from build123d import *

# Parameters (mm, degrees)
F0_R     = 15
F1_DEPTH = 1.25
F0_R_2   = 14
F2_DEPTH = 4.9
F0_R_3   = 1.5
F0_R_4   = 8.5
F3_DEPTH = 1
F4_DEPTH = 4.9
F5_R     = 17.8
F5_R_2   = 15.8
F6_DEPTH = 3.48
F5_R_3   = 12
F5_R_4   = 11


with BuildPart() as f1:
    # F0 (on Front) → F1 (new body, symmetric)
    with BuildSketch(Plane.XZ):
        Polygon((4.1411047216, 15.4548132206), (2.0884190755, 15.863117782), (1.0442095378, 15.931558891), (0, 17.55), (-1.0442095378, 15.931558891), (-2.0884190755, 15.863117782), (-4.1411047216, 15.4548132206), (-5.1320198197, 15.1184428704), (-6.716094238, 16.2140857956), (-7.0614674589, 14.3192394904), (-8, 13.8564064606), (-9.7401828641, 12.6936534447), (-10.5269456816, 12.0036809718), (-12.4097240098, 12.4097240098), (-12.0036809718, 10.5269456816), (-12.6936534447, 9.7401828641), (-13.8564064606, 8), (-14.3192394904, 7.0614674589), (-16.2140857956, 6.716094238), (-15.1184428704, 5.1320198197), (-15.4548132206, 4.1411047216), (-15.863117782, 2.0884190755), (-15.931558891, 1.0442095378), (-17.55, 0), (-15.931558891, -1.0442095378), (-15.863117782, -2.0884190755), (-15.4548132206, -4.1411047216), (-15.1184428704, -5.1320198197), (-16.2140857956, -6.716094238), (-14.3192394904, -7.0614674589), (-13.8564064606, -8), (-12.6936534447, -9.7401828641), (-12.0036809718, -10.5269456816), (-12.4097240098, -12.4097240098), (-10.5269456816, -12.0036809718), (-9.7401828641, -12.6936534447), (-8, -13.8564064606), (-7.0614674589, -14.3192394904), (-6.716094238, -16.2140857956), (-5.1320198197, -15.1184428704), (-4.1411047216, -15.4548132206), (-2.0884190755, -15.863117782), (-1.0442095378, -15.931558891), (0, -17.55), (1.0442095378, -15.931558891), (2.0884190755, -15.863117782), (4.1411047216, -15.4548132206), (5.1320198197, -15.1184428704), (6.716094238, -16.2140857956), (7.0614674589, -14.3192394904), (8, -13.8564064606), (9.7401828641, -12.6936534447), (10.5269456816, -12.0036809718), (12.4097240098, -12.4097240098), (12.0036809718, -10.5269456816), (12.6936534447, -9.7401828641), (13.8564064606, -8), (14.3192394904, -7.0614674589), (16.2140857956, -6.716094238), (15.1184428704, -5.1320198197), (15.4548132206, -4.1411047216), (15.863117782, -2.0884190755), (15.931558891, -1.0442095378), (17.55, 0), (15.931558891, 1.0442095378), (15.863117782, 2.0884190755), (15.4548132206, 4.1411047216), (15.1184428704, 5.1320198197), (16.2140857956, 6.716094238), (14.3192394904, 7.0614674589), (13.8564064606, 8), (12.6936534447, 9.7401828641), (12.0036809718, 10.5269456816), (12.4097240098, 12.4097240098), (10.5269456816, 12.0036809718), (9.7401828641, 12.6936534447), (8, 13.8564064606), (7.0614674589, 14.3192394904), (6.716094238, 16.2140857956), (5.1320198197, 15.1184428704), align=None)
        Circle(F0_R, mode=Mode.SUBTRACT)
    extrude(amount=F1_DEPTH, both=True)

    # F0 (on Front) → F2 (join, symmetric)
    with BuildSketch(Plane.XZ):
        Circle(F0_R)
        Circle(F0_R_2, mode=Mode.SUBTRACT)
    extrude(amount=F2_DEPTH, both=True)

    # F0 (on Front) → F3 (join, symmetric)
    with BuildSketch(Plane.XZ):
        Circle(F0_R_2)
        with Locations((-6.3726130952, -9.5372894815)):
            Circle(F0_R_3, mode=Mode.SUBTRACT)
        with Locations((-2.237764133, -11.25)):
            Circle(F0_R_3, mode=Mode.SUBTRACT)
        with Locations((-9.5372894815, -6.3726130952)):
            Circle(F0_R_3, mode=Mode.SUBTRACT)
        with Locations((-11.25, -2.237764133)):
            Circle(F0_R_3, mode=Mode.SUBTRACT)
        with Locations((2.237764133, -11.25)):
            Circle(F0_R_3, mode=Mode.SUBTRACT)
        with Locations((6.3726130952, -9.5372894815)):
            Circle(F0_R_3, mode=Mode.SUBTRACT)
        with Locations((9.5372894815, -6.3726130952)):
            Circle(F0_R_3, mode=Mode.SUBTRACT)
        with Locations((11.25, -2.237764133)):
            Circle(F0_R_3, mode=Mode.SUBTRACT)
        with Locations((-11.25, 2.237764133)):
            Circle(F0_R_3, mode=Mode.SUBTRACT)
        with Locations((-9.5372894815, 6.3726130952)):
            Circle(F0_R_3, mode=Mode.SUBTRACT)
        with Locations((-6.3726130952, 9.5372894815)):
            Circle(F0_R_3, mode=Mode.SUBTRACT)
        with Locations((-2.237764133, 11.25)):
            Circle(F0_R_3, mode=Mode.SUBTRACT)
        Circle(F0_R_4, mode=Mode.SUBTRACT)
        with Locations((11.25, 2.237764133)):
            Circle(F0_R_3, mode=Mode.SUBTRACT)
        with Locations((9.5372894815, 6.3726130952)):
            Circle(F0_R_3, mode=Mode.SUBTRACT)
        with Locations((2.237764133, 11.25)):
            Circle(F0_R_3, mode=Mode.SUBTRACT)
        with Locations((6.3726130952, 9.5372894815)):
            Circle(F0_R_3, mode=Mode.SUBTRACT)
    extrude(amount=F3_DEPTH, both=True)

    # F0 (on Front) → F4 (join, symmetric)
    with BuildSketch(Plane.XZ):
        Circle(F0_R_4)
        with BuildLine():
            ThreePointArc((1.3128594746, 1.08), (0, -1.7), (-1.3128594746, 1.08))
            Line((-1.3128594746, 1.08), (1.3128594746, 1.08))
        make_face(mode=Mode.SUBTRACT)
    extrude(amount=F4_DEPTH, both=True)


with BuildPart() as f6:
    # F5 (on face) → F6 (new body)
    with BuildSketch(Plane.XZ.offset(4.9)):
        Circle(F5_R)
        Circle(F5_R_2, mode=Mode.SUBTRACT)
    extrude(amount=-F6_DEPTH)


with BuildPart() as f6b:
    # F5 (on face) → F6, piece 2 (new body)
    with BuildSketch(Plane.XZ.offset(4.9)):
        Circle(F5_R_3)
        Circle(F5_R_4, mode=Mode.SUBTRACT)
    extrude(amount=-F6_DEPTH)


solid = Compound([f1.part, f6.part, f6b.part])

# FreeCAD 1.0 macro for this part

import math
import FreeCAD as App
import Part
import Sketcher
Q = App.Units.Quantity

doc = App.newDocument("Part")
body = doc.addObject("PartDesign::Body", "Body")

# Sketch on XZ plane
sketch1 = body.newObject("Sketcher::SketchObject", "Sketch")
sketch1.AttachmentSupport = (doc.getObject("XZ_Plane"), [""])
sketch1.MapMode = "FlatFace"
sketch1.addGeometry(Part.LineSegment(App.Vector(4.1, 15.5, 0), App.Vector(2.1, 15.9, 0)), False)
sketch1.addGeometry(Part.LineSegment(App.Vector(2.1, 15.9, 0), App.Vector(1, 15.9, 0)), False)
sketch1.addGeometry(Part.LineSegment(App.Vector(1, 15.9, 0), App.Vector(0, 17.6, 0)), False)
sketch1.addGeometry(Part.LineSegment(App.Vector(0, 17.6, 0), App.Vector(-1, 15.9, 0)), False)
sketch1.addGeometry(Part.LineSegment(App.Vector(-1, 15.9, 0), App.Vector(-2.1, 15.9, 0)), False)
sketch1.addGeometry(Part.LineSegment(App.Vector(-2.1, 15.9, 0), App.Vector(-4.1, 15.5, 0)), False)
sketch1.addGeometry(Part.LineSegment(App.Vector(-4.1, 15.5, 0), App.Vector(-5.1, 15.1, 0)), False)
sketch1.addGeometry(Part.LineSegment(App.Vector(-5.1, 15.1, 0), App.Vector(-6.7, 16.2, 0)), False)
sketch1.addGeometry(Part.LineSegment(App.Vector(-6.7, 16.2, 0), App.Vector(-7.1, 14.3, 0)), False)
sketch1.addGeometry(Part.LineSegment(App.Vector(-7.1, 14.3, 0), App.Vector(-8, 13.9, 0)), False)
sketch1.addGeometry(Part.LineSegment(App.Vector(-8, 13.9, 0), App.Vector(-9.7, 12.7, 0)), False)
sketch1.addGeometry(Part.LineSegment(App.Vector(-9.7, 12.7, 0), App.Vector(-10.5, 12, 0)), False)
sketch1.addGeometry(Part.LineSegment(App.Vector(-10.5, 12, 0), App.Vector(-12.4, 12.4, 0)), False)
sketch1.addGeometry(Part.LineSegment(App.Vector(-12.4, 12.4, 0), App.Vector(-12, 10.5, 0)), False)
sketch1.addGeometry(Part.LineSegment(App.Vector(-12, 10.5, 0), App.Vector(-12.7, 9.7, 0)), False)
sketch1.addGeometry(Part.LineSegment(App.Vector(-12.7, 9.7, 0), App.Vector(-13.9, 8, 0)), False)
sketch1.addGeometry(Part.LineSegment(App.Vector(-13.9, 8, 0), App.Vector(-14.3, 7.1, 0)), False)
sketch1.addGeometry(Part.LineSegment(App.Vector(-14.3, 7.1, 0), App.Vector(-16.2, 6.7, 0)), False)
sketch1.addGeometry(Part.LineSegment(App.Vector(-16.2, 6.7, 0), App.Vector(-15.1, 5.1, 0)), False)
sketch1.addGeometry(Part.LineSegment(App.Vector(-15.1, 5.1, 0), App.Vector(-15.5, 4.1, 0)), False)
sketch1.addGeometry(Part.LineSegment(App.Vector(-15.5, 4.1, 0), App.Vector(-15.9, 2.1, 0)), False)
sketch1.addGeometry(Part.LineSegment(App.Vector(-15.9, 2.1, 0), App.Vector(-15.9, 1, 0)), False)
sketch1.addGeometry(Part.LineSegment(App.Vector(-15.9, 1, 0), App.Vector(-17.6, 0, 0)), False)
sketch1.addGeometry(Part.LineSegment(App.Vector(-17.6, 0, 0), App.Vector(-15.9, -1, 0)), False)
sketch1.addGeometry(Part.LineSegment(App.Vector(-15.9, -1, 0), App.Vector(-15.9, -2.1, 0)), False)
sketch1.addGeometry(Part.LineSegment(App.Vector(-15.9, -2.1, 0), App.Vector(-15.5, -4.1, 0)), False)
sketch1.addGeometry(Part.LineSegment(App.Vector(-15.5, -4.1, 0), App.Vector(-15.1, -5.1, 0)), False)
sketch1.addGeometry(Part.LineSegment(App.Vector(-15.1, -5.1, 0), App.Vector(-16.2, -6.7, 0)), False)
sketch1.addGeometry(Part.LineSegment(App.Vector(-16.2, -6.7, 0), App.Vector(-14.3, -7.1, 0)), False)
sketch1.addGeometry(Part.LineSegment(App.Vector(-14.3, -7.1, 0), App.Vector(-13.9, -8, 0)), False)
sketch1.addGeometry(Part.LineSegment(App.Vector(-13.9, -8, 0), App.Vector(-12.7, -9.7, 0)), False)
sketch1.addGeometry(Part.LineSegment(App.Vector(-12.7, -9.7, 0), App.Vector(-12, -10.5, 0)), False)
sketch1.addGeometry(Part.LineSegment(App.Vector(-12, -10.5, 0), App.Vector(-12.4, -12.4, 0)), False)
sketch1.addGeometry(Part.LineSegment(App.Vector(-12.4, -12.4, 0), App.Vector(-10.5, -12, 0)), False)
sketch1.addGeometry(Part.LineSegment(App.Vector(-10.5, -12, 0), App.Vector(-9.7, -12.7, 0)), False)
sketch1.addGeometry(Part.LineSegment(App.Vector(-9.7, -12.7, 0), App.Vector(-8, -13.9, 0)), False)
sketch1.addGeometry(Part.LineSegment(App.Vector(-8, -13.9, 0), App.Vector(-7.1, -14.3, 0)), False)
sketch1.addGeometry(Part.LineSegment(App.Vector(-7.1, -14.3, 0), App.Vector(-6.7, -16.2, 0)), False)
sketch1.addGeometry(Part.LineSegment(App.Vector(-6.7, -16.2, 0), App.Vector(-5.1, -15.1, 0)), False)
sketch1.addGeometry(Part.LineSegment(App.Vector(-5.1, -15.1, 0), App.Vector(-4.1, -15.5, 0)), False)
sketch1.addGeometry(Part.LineSegment(App.Vector(-4.1, -15.5, 0), App.Vector(-2.1, -15.9, 0)), False)
sketch1.addGeometry(Part.LineSegment(App.Vector(-2.1, -15.9, 0), App.Vector(-1, -15.9, 0)), False)
sketch1.addGeometry(Part.LineSegment(App.Vector(-1, -15.9, 0), App.Vector(0, -17.6, 0)), False)
sketch1.addGeometry(Part.LineSegment(App.Vector(0, -17.6, 0), App.Vector(1, -15.9, 0)), False)
sketch1.addGeometry(Part.LineSegment(App.Vector(1, -15.9, 0), App.Vector(2.1, -15.9, 0)), False)
sketch1.addGeometry(Part.LineSegment(App.Vector(2.1, -15.9, 0), App.Vector(4.1, -15.5, 0)), False)
sketch1.addGeometry(Part.LineSegment(App.Vector(4.1, -15.5, 0), App.Vector(5.1, -15.1, 0)), False)
sketch1.addGeometry(Part.LineSegment(App.Vector(5.1, -15.1, 0), App.Vector(6.7, -16.2, 0)), False)
sketch1.addGeometry(Part.LineSegment(App.Vector(6.7, -16.2, 0), App.Vector(7.1, -14.3, 0)), False)
sketch1.addGeometry(Part.LineSegment(App.Vector(7.1, -14.3, 0), App.Vector(8, -13.9, 0)), False)
sketch1.addGeometry(Part.LineSegment(App.Vector(8, -13.9, 0), App.Vector(9.7, -12.7, 0)), False)
sketch1.addGeometry(Part.LineSegment(App.Vector(9.7, -12.7, 0), App.Vector(10.5, -12, 0)), False)
sketch1.addGeometry(Part.LineSegment(App.Vector(10.5, -12, 0), App.Vector(12.4, -12.4, 0)), False)
sketch1.addGeometry(Part.LineSegment(App.Vector(12.4, -12.4, 0), App.Vector(12, -10.5, 0)), False)
sketch1.addGeometry(Part.LineSegment(App.Vector(12, -10.5, 0), App.Vector(12.7, -9.7, 0)), False)
sketch1.addGeometry(Part.LineSegment(App.Vector(12.7, -9.7, 0), App.Vector(13.9, -8, 0)), False)
sketch1.addGeometry(Part.LineSegment(App.Vector(13.9, -8, 0), App.Vector(14.3, -7.1, 0)), False)
sketch1.addGeometry(Part.LineSegment(App.Vector(14.3, -7.1, 0), App.Vector(16.2, -6.7, 0)), False)
sketch1.addGeometry(Part.LineSegment(App.Vector(16.2, -6.7, 0), App.Vector(15.1, -5.1, 0)), False)
sketch1.addGeometry(Part.LineSegment(App.Vector(15.1, -5.1, 0), App.Vector(15.5, -4.1, 0)), False)
sketch1.addGeometry(Part.LineSegment(App.Vector(15.5, -4.1, 0), App.Vector(15.9, -2.1, 0)), False)
sketch1.addGeometry(Part.LineSegment(App.Vector(15.9, -2.1, 0), App.Vector(15.9, -1, 0)), False)
sketch1.addGeometry(Part.LineSegment(App.Vector(15.9, -1, 0), App.Vector(17.6, 0, 0)), False)
sketch1.addGeometry(Part.LineSegment(App.Vector(17.6, 0, 0), App.Vector(15.9, 1, 0)), False)
sketch1.addGeometry(Part.LineSegment(App.Vector(15.9, 1, 0), App.Vector(15.9, 2.1, 0)), False)
sketch1.addGeometry(Part.LineSegment(App.Vector(15.9, 2.1, 0), App.Vector(15.5, 4.1, 0)), False)
sketch1.addGeometry(Part.LineSegment(App.Vector(15.5, 4.1, 0), App.Vector(15.1, 5.1, 0)), False)
sketch1.addGeometry(Part.LineSegment(App.Vector(15.1, 5.1, 0), App.Vector(16.2, 6.7, 0)), False)
sketch1.addGeometry(Part.LineSegment(App.Vector(16.2, 6.7, 0), App.Vector(14.3, 7.1, 0)), False)
sketch1.addGeometry(Part.LineSegment(App.Vector(14.3, 7.1, 0), App.Vector(13.9, 8, 0)), False)
sketch1.addGeometry(Part.LineSegment(App.Vector(13.9, 8, 0), App.Vector(12.7, 9.7, 0)), False)
sketch1.addGeometry(Part.LineSegment(App.Vector(12.7, 9.7, 0), App.Vector(12, 10.5, 0)), False)
sketch1.addGeometry(Part.LineSegment(App.Vector(12, 10.5, 0), App.Vector(12.4, 12.4, 0)), False)
sketch1.addGeometry(Part.LineSegment(App.Vector(12.4, 12.4, 0), App.Vector(10.5, 12, 0)), False)
sketch1.addGeometry(Part.LineSegment(App.Vector(10.5, 12, 0), App.Vector(9.7, 12.7, 0)), False)
sketch1.addGeometry(Part.LineSegment(App.Vector(9.7, 12.7, 0), App.Vector(8, 13.9, 0)), False)
sketch1.addGeometry(Part.LineSegment(App.Vector(8, 13.9, 0), App.Vector(7.1, 14.3, 0)), False)
sketch1.addGeometry(Part.LineSegment(App.Vector(7.1, 14.3, 0), App.Vector(6.7, 16.2, 0)), False)
sketch1.addGeometry(Part.LineSegment(App.Vector(6.7, 16.2, 0), App.Vector(5.1, 15.1, 0)), False)
sketch1.addGeometry(Part.LineSegment(App.Vector(5.1, 15.1, 0), App.Vector(4.1, 15.5, 0)), False)
sketch1.addGeometry(Part.Circle(App.Vector(0, 0, 0), App.Vector(0, 0, 1), 15), False)
sketch1.addConstraint(Sketcher.Constraint("Coincident", 0, 2, 1, 1))
sketch1.addConstraint(Sketcher.Constraint("Coincident", 1, 2, 2, 1))
sketch1.addConstraint(Sketcher.Constraint("Coincident", 2, 2, 3, 1))
sketch1.addConstraint(Sketcher.Constraint("Coincident", 3, 2, 4, 1))
sketch1.addConstraint(Sketcher.Constraint("Coincident", 4, 2, 5, 1))
sketch1.addConstraint(Sketcher.Constraint("Coincident", 5, 2, 6, 1))
sketch1.addConstraint(Sketcher.Constraint("Coincident", 6, 2, 7, 1))
sketch1.addConstraint(Sketcher.Constraint("Coincident", 7, 2, 8, 1))
sketch1.addConstraint(Sketcher.Constraint("Coincident", 8, 2, 9, 1))
sketch1.addConstraint(Sketcher.Constraint("Coincident", 9, 2, 10, 1))
sketch1.addConstraint(Sketcher.Constraint("Coincident", 10, 2, 11, 1))
sketch1.addConstraint(Sketcher.Constraint("Coincident", 11, 2, 12, 1))
sketch1.addConstraint(Sketcher.Constraint("Coincident", 12, 2, 13, 1))
sketch1.addConstraint(Sketcher.Constraint("Coincident", 13, 2, 14, 1))
sketch1.addConstraint(Sketcher.Constraint("Coincident", 14, 2, 15, 1))
sketch1.addConstraint(Sketcher.Constraint("Coincident", 15, 2, 16, 1))
sketch1.addConstraint(Sketcher.Constraint("Coincident", 16, 2, 17, 1))
sketch1.addConstraint(Sketcher.Constraint("Coincident", 17, 2, 18, 1))
sketch1.addConstraint(Sketcher.Constraint("Coincident", 18, 2, 19, 1))
sketch1.addConstraint(Sketcher.Constraint("Coincident", 19, 2, 20, 1))
sketch1.addConstraint(Sketcher.Constraint("Coincident", 20, 2, 21, 1))
sketch1.addConstraint(Sketcher.Constraint("Coincident", 21, 2, 22, 1))
sketch1.addConstraint(Sketcher.Constraint("Coincident", 22, 2, 23, 1))
sketch1.addConstraint(Sketcher.Constraint("Coincident", 23, 2, 24, 1))
sketch1.addConstraint(Sketcher.Constraint("Coincident", 24, 2, 25, 1))
sketch1.addConstraint(Sketcher.Constraint("Coincident", 25, 2, 26, 1))
sketch1.addConstraint(Sketcher.Constraint("Coincident", 26, 2, 27, 1))
sketch1.addConstraint(Sketcher.Constraint("Coincident", 27, 2, 28, 1))
sketch1.addConstraint(Sketcher.Constraint("Coincident", 28, 2, 29, 1))
sketch1.addConstraint(Sketcher.Constraint("Coincident", 29, 2, 30, 1))
sketch1.addConstraint(Sketcher.Constraint("Coincident", 30, 2, 31, 1))
sketch1.addConstraint(Sketcher.Constraint("Coincident", 31, 2, 32, 1))
sketch1.addConstraint(Sketcher.Constraint("Coincident", 32, 2, 33, 1))
sketch1.addConstraint(Sketcher.Constraint("Coincident", 33, 2, 34, 1))
sketch1.addConstraint(Sketcher.Constraint("Coincident", 34, 2, 35, 1))
sketch1.addConstraint(Sketcher.Constraint("Coincident", 35, 2, 36, 1))
sketch1.addConstraint(Sketcher.Constraint("Coincident", 36, 2, 37, 1))
sketch1.addConstraint(Sketcher.Constraint("Coincident", 37, 2, 38, 1))
sketch1.addConstraint(Sketcher.Constraint("Coincident", 38, 2, 39, 1))
sketch1.addConstraint(Sketcher.Constraint("Coincident", 39, 2, 40, 1))
sketch1.addConstraint(Sketcher.Constraint("Coincident", 40, 2, 41, 1))
sketch1.addConstraint(Sketcher.Constraint("Coincident", 41, 2, 42, 1))
sketch1.addConstraint(Sketcher.Constraint("Coincident", 42, 2, 43, 1))
sketch1.addConstraint(Sketcher.Constraint("Coincident", 43, 2, 44, 1))
sketch1.addConstraint(Sketcher.Constraint("Coincident", 44, 2, 45, 1))
sketch1.addConstraint(Sketcher.Constraint("Coincident", 45, 2, 46, 1))
sketch1.addConstraint(Sketcher.Constraint("Coincident", 46, 2, 47, 1))
sketch1.addConstraint(Sketcher.Constraint("Coincident", 47, 2, 48, 1))
sketch1.addConstraint(Sketcher.Constraint("Coincident", 48, 2, 49, 1))
sketch1.addConstraint(Sketcher.Constraint("Coincident", 49, 2, 50, 1))
sketch1.addConstraint(Sketcher.Constraint("Coincident", 50, 2, 51, 1))
sketch1.addConstraint(Sketcher.Constraint("Coincident", 51, 2, 52, 1))
sketch1.addConstraint(Sketcher.Constraint("Coincident", 52, 2, 53, 1))
sketch1.addConstraint(Sketcher.Constraint("Coincident", 53, 2, 54, 1))
sketch1.addConstraint(Sketcher.Constraint("Coincident", 54, 2, 55, 1))
sketch1.addConstraint(Sketcher.Constraint("Coincident", 55, 2, 56, 1))
sketch1.addConstraint(Sketcher.Constraint("Coincident", 56, 2, 57, 1))
sketch1.addConstraint(Sketcher.Constraint("Coincident", 57, 2, 58, 1))
sketch1.addConstraint(Sketcher.Constraint("Coincident", 58, 2, 59, 1))
sketch1.addConstraint(Sketcher.Constraint("Coincident", 59, 2, 60, 1))
sketch1.addConstraint(Sketcher.Constraint("Coincident", 60, 2, 61, 1))
sketch1.addConstraint(Sketcher.Constraint("Coincident", 61, 2, 62, 1))
sketch1.addConstraint(Sketcher.Constraint("Coincident", 62, 2, 63, 1))
sketch1.addConstraint(Sketcher.Constraint("Coincident", 63, 2, 64, 1))
sketch1.addConstraint(Sketcher.Constraint("Coincident", 64, 2, 65, 1))
sketch1.addConstraint(Sketcher.Constraint("Coincident", 65, 2, 66, 1))
sketch1.addConstraint(Sketcher.Constraint("Coincident", 66, 2, 67, 1))
sketch1.addConstraint(Sketcher.Constraint("Coincident", 67, 2, 68, 1))
sketch1.addConstraint(Sketcher.Constraint("Coincident", 68, 2, 69, 1))
sketch1.addConstraint(Sketcher.Constraint("Coincident", 69, 2, 70, 1))
sketch1.addConstraint(Sketcher.Constraint("Coincident", 70, 2, 71, 1))
sketch1.addConstraint(Sketcher.Constraint("Coincident", 71, 2, 72, 1))
sketch1.addConstraint(Sketcher.Constraint("Coincident", 72, 2, 73, 1))
sketch1.addConstraint(Sketcher.Constraint("Coincident", 73, 2, 74, 1))
sketch1.addConstraint(Sketcher.Constraint("Coincident", 74, 2, 75, 1))
sketch1.addConstraint(Sketcher.Constraint("Coincident", 75, 2, 76, 1))
sketch1.addConstraint(Sketcher.Constraint("Coincident", 76, 2, 77, 1))
sketch1.addConstraint(Sketcher.Constraint("Coincident", 77, 2, 78, 1))
sketch1.addConstraint(Sketcher.Constraint("Coincident", 78, 2, 79, 1))
sketch1.addConstraint(Sketcher.Constraint("Coincident", 79, 2, 0, 1))
sketch1.addConstraint(Sketcher.Constraint("Coincident", 80, 3, -1, 1))
sketch1.addConstraint(Sketcher.Constraint("Symmetric", 0, 2, 40, 2, -1, 1))
sketch1.addConstraint(Sketcher.Constraint("Symmetric", 1, 2, 41, 2, -1, 1))
sketch1.addConstraint(Sketcher.Constraint("Symmetric", 2, 2, 42, 2, -1, 1))
sketch1.addConstraint(Sketcher.Constraint("Symmetric", 3, 2, 43, 2, -1, 1))
sketch1.addConstraint(Sketcher.Constraint("Symmetric", 4, 2, 44, 2, -1, 1))
sketch1.addConstraint(Sketcher.Constraint("Symmetric", 5, 2, 45, 2, -1, 1))
sketch1.addConstraint(Sketcher.Constraint("Symmetric", 6, 2, 46, 2, -1, 1))
sketch1.addConstraint(Sketcher.Constraint("Symmetric", 7, 2, 47, 2, -1, 1))
sketch1.addConstraint(Sketcher.Constraint("Symmetric", 8, 2, 48, 2, -1, 1))
sketch1.addConstraint(Sketcher.Constraint("Symmetric", 9, 2, 49, 2, -1, 1))
sketch1.addConstraint(Sketcher.Constraint("Symmetric", 10, 2, 50, 2, -1, 1))
sketch1.addConstraint(Sketcher.Constraint("Symmetric", 11, 2, 51, 2, -1, 1))
sketch1.addConstraint(Sketcher.Constraint("Symmetric", 12, 2, 52, 2, -1, 1))
sketch1.addConstraint(Sketcher.Constraint("Symmetric", 13, 2, 53, 2, -1, 1))
sketch1.addConstraint(Sketcher.Constraint("Symmetric", 14, 2, 54, 2, -1, 1))
sketch1.addConstraint(Sketcher.Constraint("Symmetric", 15, 2, 55, 2, -1, 1))
sketch1.addConstraint(Sketcher.Constraint("Symmetric", 16, 2, 56, 2, -1, 1))
sketch1.addConstraint(Sketcher.Constraint("Symmetric", 17, 2, 57, 2, -1, 1))
sketch1.addConstraint(Sketcher.Constraint("Symmetric", 18, 2, 58, 2, -1, 1))
sketch1.addConstraint(Sketcher.Constraint("Symmetric", 19, 2, 59, 2, -1, 1))
sketch1.addConstraint(Sketcher.Constraint("Symmetric", 20, 2, 60, 2, -1, 1))
sketch1.addConstraint(Sketcher.Constraint("Symmetric", 21, 2, 61, 2, -1, 1))
sketch1.addConstraint(Sketcher.Constraint("Symmetric", 22, 2, 62, 2, -1, 1))
sketch1.addConstraint(Sketcher.Constraint("Symmetric", 23, 2, 63, 2, -1, 1))
sketch1.addConstraint(Sketcher.Constraint("Symmetric", 24, 2, 64, 2, -1, 1))
sketch1.addConstraint(Sketcher.Constraint("Symmetric", 25, 2, 65, 2, -1, 1))
sketch1.addConstraint(Sketcher.Constraint("Symmetric", 26, 2, 66, 2, -1, 1))
sketch1.addConstraint(Sketcher.Constraint("Symmetric", 27, 2, 67, 2, -1, 1))
sketch1.addConstraint(Sketcher.Constraint("Symmetric", 28, 2, 68, 2, -1, 1))
sketch1.addConstraint(Sketcher.Constraint("Symmetric", 29, 2, 69, 2, -1, 1))
sketch1.addConstraint(Sketcher.Constraint("Symmetric", 30, 2, 70, 2, -1, 1))
sketch1.addConstraint(Sketcher.Constraint("Symmetric", 31, 2, 71, 2, -1, 1))
sketch1.addConstraint(Sketcher.Constraint("Symmetric", 32, 2, 72, 2, -1, 1))
sketch1.addConstraint(Sketcher.Constraint("Symmetric", 33, 2, 73, 2, -1, 1))
sketch1.addConstraint(Sketcher.Constraint("Symmetric", 34, 2, 74, 2, -1, 1))
sketch1.addConstraint(Sketcher.Constraint("Symmetric", 35, 2, 75, 2, -1, 1))
sketch1.addConstraint(Sketcher.Constraint("Symmetric", 36, 2, 76, 2, -1, 1))
sketch1.addConstraint(Sketcher.Constraint("Symmetric", 37, 2, 77, 2, -1, 1))
sketch1.addConstraint(Sketcher.Constraint("Symmetric", 38, 2, 78, 2, -1, 1))
sketch1.addConstraint(Sketcher.Constraint("Symmetric", 39, 2, 79, 2, -1, 1))
sketch1.addConstraint(Sketcher.Constraint("Symmetric", 1, 2, 3, 2, -2))
sketch1.addConstraint(Sketcher.Constraint("Symmetric", 0, 2, 4, 2, -2))
sketch1.addConstraint(Sketcher.Constraint("Symmetric", 39, 2, 45, 2, -2))
sketch1.addConstraint(Sketcher.Constraint("Symmetric", 38, 2, 46, 2, -2))
sketch1.addConstraint(Sketcher.Constraint("Symmetric", 37, 2, 47, 2, -2))
sketch1.addConstraint(Sketcher.Constraint("Symmetric", 36, 2, 48, 2, -2))
sketch1.addConstraint(Sketcher.Constraint("Symmetric", 35, 2, 49, 2, -2))
sketch1.addConstraint(Sketcher.Constraint("Symmetric", 34, 2, 50, 2, -2))
sketch1.addConstraint(Sketcher.Constraint("Symmetric", 33, 2, 51, 2, -2))
sketch1.addConstraint(Sketcher.Constraint("Symmetric", 32, 2, 52, 2, -2))
sketch1.addConstraint(Sketcher.Constraint("Symmetric", 31, 2, 53, 2, -2))
sketch1.addConstraint(Sketcher.Constraint("Symmetric", 30, 2, 54, 2, -2))
sketch1.addConstraint(Sketcher.Constraint("Symmetric", 29, 2, 55, 2, -2))
sketch1.addConstraint(Sketcher.Constraint("Symmetric", 28, 2, 56, 2, -2))
sketch1.addConstraint(Sketcher.Constraint("Symmetric", 27, 2, 57, 2, -2))
sketch1.addConstraint(Sketcher.Constraint("Symmetric", 26, 2, 58, 2, -2))
sketch1.addConstraint(Sketcher.Constraint("Symmetric", 25, 2, 59, 2, -2))
sketch1.addConstraint(Sketcher.Constraint("Symmetric", 24, 2, 60, 2, -2))
sketch1.addConstraint(Sketcher.Constraint("Symmetric", 23, 2, 61, 2, -2))
sketch1.addConstraint(Sketcher.Constraint("PointOnObject", 2, 2, -2))
sketch1.addConstraint(Sketcher.Constraint("PointOnObject", 22, 2, -1))
sketch1.addConstraint(Sketcher.Constraint("Perpendicular", 0, 20))
sketch1.addConstraint(Sketcher.Constraint("Perpendicular", 1, 21))
sketch1.addConstraint(Sketcher.Constraint("Perpendicular", 2, 22))
sketch1.addConstraint(Sketcher.Constraint("Perpendicular", 6, 26))
sketch1.addConstraint(Sketcher.Constraint("Perpendicular", 7, 27))
sketch1.addConstraint(Sketcher.Constraint("Perpendicular", 8, 28))
sketch1.addConstraint(Sketcher.Constraint("Perpendicular", 9, 29))
sketch1.addConstraint(Sketcher.Constraint("Perpendicular", 10, 30))
sketch1.addConstraint(Sketcher.Constraint("Perpendicular", 11, 31))
sketch1.addConstraint(Sketcher.Constraint("Perpendicular", 12, 32))
sketch1.addConstraint(Sketcher.Constraint("Equal", 4, 6))
sketch1.addConstraint(Sketcher.Constraint("Equal", 3, 7))
sketch1.addConstraint(Sketcher.Constraint("Equal", 7, 8))
sketch1.addConstraint(Sketcher.Constraint("Equal", 6, 9))
sketch1.addConstraint(Sketcher.Constraint("Equal", 5, 10))
sketch1.addConstraint(Sketcher.Constraint("Equal", 9, 11))
sketch1.addConstraint(Sketcher.Constraint("Equal", 8, 12))
sketch1.addConstraint(Sketcher.Constraint("Equal", 12, 13))
sketch1.addConstraint(Sketcher.Constraint("Equal", 11, 14))
sketch1.addConstraint(Sketcher.Constraint("Equal", 10, 15))
sketch1.addConstraint(Sketcher.Constraint("Equal", 14, 16))
sketch1.addConstraint(Sketcher.Constraint("Equal", 13, 17))
sketch1.addConstraint(Sketcher.Constraint("Equal", 17, 18))
sketch1.addConstraint(Sketcher.Constraint("Equal", 16, 19))
sketch1.addConstraint(Sketcher.Constraint("Equal", 15, 20))
sketch1.addConstraint(Sketcher.Constraint("Equal", 19, 21))
sketch1.addConstraint(Sketcher.Constraint("Equal", 18, 22))
sketch1.addConstraint(Sketcher.Constraint("Diameter", 80, 30.0))
sketch1.addConstraint(Sketcher.Constraint("DistanceX", 9, 2, -1, 1, 8.0))
sketch1.addConstraint(Sketcher.Constraint("Angle", 0, Q("168.75 deg")))
sketch1.addConstraint(Sketcher.Constraint("Angle", 1, Q("176.25 deg")))
sketch1.addConstraint(Sketcher.Constraint("Angle", 6, Q("-161.25 deg")))
sketch1.addConstraint(Sketcher.Constraint("Angle", 9, Q("-153.75 deg")))
sketch1.addConstraint(Sketcher.Constraint("Angle", 10, Q("-146.25 deg")))
sketch1.addConstraint(Sketcher.Constraint("Angle", 11, Q("-138.75 deg")))
sketch1.addConstraint(Sketcher.Constraint("DistanceY", -1, 1, 2, 2, 17.55))
sketch1.addConstraint(Sketcher.Constraint("Distance", 0, 2.0929))
sketch1.addConstraint(Sketcher.Constraint("Distance", 1, 1.04645))
sketch1.addConstraint(Sketcher.Constraint("DistanceX", -1, 1, 0, 2, 2.088419))
sketch1.addConstraint(Sketcher.Constraint("DistanceY", -1, 1, 1, 2, 15.931559))
sketch1.addConstraint(Sketcher.Constraint("DistanceY", -1, 1, 8, 2, 14.319239))
pad1 = body.newObject("PartDesign::Pad", "Pad")
pad1.Profile = sketch1
pad1.Length = 2.5
pad1.Midplane = True

# Sketch on XZ plane
sketch2 = body.newObject("Sketcher::SketchObject", "Sketch001")
sketch2.AttachmentSupport = (doc.getObject("XZ_Plane"), [""])
sketch2.MapMode = "FlatFace"
sketch2.addGeometry(Part.Circle(App.Vector(0, 0, 0), App.Vector(0, 0, 1), 15), False)
sketch2.addGeometry(Part.Circle(App.Vector(0, 0, 0), App.Vector(0, 0, 1), 14), False)
sketch2.addConstraint(Sketcher.Constraint("Coincident", 0, 3, -1, 1))
sketch2.addConstraint(Sketcher.Constraint("Coincident", 1, 3, -1, 1))
sketch2.addConstraint(Sketcher.Constraint("Diameter", 0, 30.0))
sketch2.addConstraint(Sketcher.Constraint("Diameter", 1, 28.0))
pad2 = body.newObject("PartDesign::Pad", "Pad001")
pad2.Profile = sketch2
pad2.Length = 9.8
pad2.Midplane = True

# Sketch on XZ plane
sketch3 = body.newObject("Sketcher::SketchObject", "Sketch002")
sketch3.AttachmentSupport = (doc.getObject("XZ_Plane"), [""])
sketch3.MapMode = "FlatFace"
sketch3.addGeometry(Part.Circle(App.Vector(0, 0, 0), App.Vector(0, 0, 1), 14), False)
sketch3.addGeometry(Part.Circle(App.Vector(-2.2, -11.2, 0), App.Vector(0, 0, 1), 1.5), False)
sketch3.addGeometry(Part.Circle(App.Vector(-6.4, -9.5, 0), App.Vector(0, 0, 1), 1.5), False)
sketch3.addGeometry(Part.Circle(App.Vector(-9.5, -6.4, 0), App.Vector(0, 0, 1), 1.5), False)
sketch3.addGeometry(Part.Circle(App.Vector(-11.2, -2.2, 0), App.Vector(0, 0, 1), 1.5), False)
sketch3.addGeometry(Part.Circle(App.Vector(2.2, -11.2, 0), App.Vector(0, 0, 1), 1.5), False)
sketch3.addGeometry(Part.Circle(App.Vector(6.4, -9.5, 0), App.Vector(0, 0, 1), 1.5), False)
sketch3.addGeometry(Part.Circle(App.Vector(9.5, -6.4, 0), App.Vector(0, 0, 1), 1.5), False)
sketch3.addGeometry(Part.Circle(App.Vector(11.2, -2.2, 0), App.Vector(0, 0, 1), 1.5), False)
sketch3.addGeometry(Part.Circle(App.Vector(-11.2, 2.2, 0), App.Vector(0, 0, 1), 1.5), False)
sketch3.addGeometry(Part.Circle(App.Vector(-9.5, 6.4, 0), App.Vector(0, 0, 1), 1.5), False)
sketch3.addGeometry(Part.Circle(App.Vector(-6.4, 9.5, 0), App.Vector(0, 0, 1), 1.5), False)
sketch3.addGeometry(Part.Circle(App.Vector(-2.2, 11.2, 0), App.Vector(0, 0, 1), 1.5), False)
sketch3.addGeometry(Part.Circle(App.Vector(0, 0, 0), App.Vector(0, 0, 1), 8.5), False)
sketch3.addGeometry(Part.Circle(App.Vector(11.2, 2.2, 0), App.Vector(0, 0, 1), 1.5), False)
sketch3.addGeometry(Part.Circle(App.Vector(9.5, 6.4, 0), App.Vector(0, 0, 1), 1.5), False)
sketch3.addGeometry(Part.Circle(App.Vector(6.4, 9.5, 0), App.Vector(0, 0, 1), 1.5), False)
sketch3.addGeometry(Part.Circle(App.Vector(2.2, 11.2, 0), App.Vector(0, 0, 1), 1.5), False)
sketch3.addConstraint(Sketcher.Constraint("Coincident", 0, 3, -1, 1))
sketch3.addConstraint(Sketcher.Constraint("Coincident", 13, 3, -1, 1))
sketch3.addConstraint(Sketcher.Constraint("Equal", 1, 2))
sketch3.addConstraint(Sketcher.Constraint("Equal", 2, 3))
sketch3.addConstraint(Sketcher.Constraint("Equal", 3, 4))
sketch3.addConstraint(Sketcher.Constraint("Equal", 4, 5))
sketch3.addConstraint(Sketcher.Constraint("Equal", 5, 6))
sketch3.addConstraint(Sketcher.Constraint("Equal", 6, 7))
sketch3.addConstraint(Sketcher.Constraint("Equal", 7, 8))
sketch3.addConstraint(Sketcher.Constraint("Equal", 8, 9))
sketch3.addConstraint(Sketcher.Constraint("Equal", 9, 10))
sketch3.addConstraint(Sketcher.Constraint("Equal", 10, 11))
sketch3.addConstraint(Sketcher.Constraint("Equal", 11, 12))
sketch3.addConstraint(Sketcher.Constraint("Equal", 12, 14))
sketch3.addConstraint(Sketcher.Constraint("Equal", 14, 15))
sketch3.addConstraint(Sketcher.Constraint("Equal", 15, 16))
sketch3.addConstraint(Sketcher.Constraint("Equal", 16, 17))
sketch3.addConstraint(Sketcher.Constraint("Symmetric", 8, 3, 9, 3, -1, 1))
sketch3.addConstraint(Sketcher.Constraint("Symmetric", 7, 3, 10, 3, -1, 1))
sketch3.addConstraint(Sketcher.Constraint("Symmetric", 6, 3, 11, 3, -1, 1))
sketch3.addConstraint(Sketcher.Constraint("Symmetric", 5, 3, 12, 3, -1, 1))
sketch3.addConstraint(Sketcher.Constraint("Symmetric", 4, 3, 14, 3, -1, 1))
sketch3.addConstraint(Sketcher.Constraint("Symmetric", 3, 3, 15, 3, -1, 1))
sketch3.addConstraint(Sketcher.Constraint("Symmetric", 2, 3, 16, 3, -1, 1))
sketch3.addConstraint(Sketcher.Constraint("Symmetric", 1, 3, 17, 3, -1, 1))
sketch3.addConstraint(Sketcher.Constraint("Symmetric", 1, 3, 5, 3, -2))
sketch3.addConstraint(Sketcher.Constraint("Symmetric", 2, 3, 6, 3, -2))
sketch3.addConstraint(Sketcher.Constraint("Symmetric", 3, 3, 7, 3, -2))
sketch3.addConstraint(Sketcher.Constraint("Symmetric", 4, 3, 8, 3, -2))
sketch3.addConstraint(Sketcher.Constraint("Diameter", 0, 28.0))
sketch3.addConstraint(Sketcher.Constraint("Diameter", 1, 3.0))
sketch3.addConstraint(Sketcher.Constraint("Diameter", 13, 17.0))
sketch3.addConstraint(Sketcher.Constraint("DistanceY", 1, 3, -1, 1, 11.25))
sketch3.addConstraint(Sketcher.Constraint("DistanceX", 4, 3, -1, 1, 11.25))
sketch3.addConstraint(Sketcher.Constraint("DistanceY", 2, 3, -1, 1, 9.537289))
sketch3.addConstraint(Sketcher.Constraint("DistanceX", 3, 3, -1, 1, 9.537289))
sketch3.addConstraint(Sketcher.Constraint("DistanceX", 2, 3, 1, 3, 4.134849))
sketch3.addConstraint(Sketcher.Constraint("DistanceY", 3, 3, 4, 3, 4.134849))
sketch3.addConstraint(Sketcher.Constraint("DistanceX", 1, 3, 5, 3, 4.475528))
sketch3.addConstraint(Sketcher.Constraint("DistanceY", 4, 3, 9, 3, 4.475528))
pad3 = body.newObject("PartDesign::Pad", "Pad002")
pad3.Profile = sketch3
pad3.Length = 2
pad3.Midplane = True

# Sketch on XZ plane
sketch4 = body.newObject("Sketcher::SketchObject", "Sketch003")
sketch4.AttachmentSupport = (doc.getObject("XZ_Plane"), [""])
sketch4.MapMode = "FlatFace"
sketch4.addGeometry(Part.Circle(App.Vector(0, 0, 0), App.Vector(0, 0, 1), 8.5), False)
sketch4.addGeometry(Part.LineSegment(App.Vector(-1.3, 1.1, 0), App.Vector(1.3, 1.1, 0)), False)
sketch4.addGeometry(Part.ArcOfCircle(Part.Circle(App.Vector(0, 0, 0), App.Vector(0, 0, 1), 1.7), math.radians(141), math.radians(399)), False)
sketch4.addConstraint(Sketcher.Constraint("Coincident", 1, 1, 2, 1))
sketch4.addConstraint(Sketcher.Constraint("Coincident", 2, 2, 1, 2))
sketch4.addConstraint(Sketcher.Constraint("Horizontal", 1))
sketch4.addConstraint(Sketcher.Constraint("Coincident", 0, 3, -1, 1))
sketch4.addConstraint(Sketcher.Constraint("Coincident", 2, 3, -1, 1))
sketch4.addConstraint(Sketcher.Constraint("Diameter", 0, 17.0))
sketch4.addConstraint(Sketcher.Constraint("Radius", 2, 1.7))
sketch4.addConstraint(Sketcher.Constraint("DistanceY", -1, 1, 1, 1, 1.08))
pad4 = body.newObject("PartDesign::Pad", "Pad003")
pad4.Profile = sketch4
pad4.Length = 9.8
pad4.Midplane = True
body2 = doc.addObject("PartDesign::Body", "Body001")

# Sketch on XZ plane
sketch5 = body2.newObject("Sketcher::SketchObject", "Sketch004")
sketch5.AttachmentSupport = (doc.getObject("XZ_Plane001"), [""])
sketch5.MapMode = "FlatFace"
sketch5.AttachmentOffset = App.Placement(App.Vector(0, 0, 4.9), App.Rotation())
sketch5.addGeometry(Part.Circle(App.Vector(0, 0, 0), App.Vector(0, 0, 1), 18), False)
sketch5.addGeometry(Part.Circle(App.Vector(0, 0, 0), App.Vector(0, 0, 1), 16), False)
sketch5.addConstraint(Sketcher.Constraint("Coincident", 0, 3, -1, 1))
sketch5.addConstraint(Sketcher.Constraint("Coincident", 1, 3, -1, 1))
sketch5.addConstraint(Sketcher.Constraint("Diameter", 0, 35.6))
sketch5.addConstraint(Sketcher.Constraint("Diameter", 1, 31.6))
pad5 = body2.newObject("PartDesign::Pad", "Pad004")
pad5.Profile = sketch5
pad5.Length = 3.48
pad5.Reversed = True
body3 = doc.addObject("PartDesign::Body", "Body002")

# Sketch on XZ plane
sketch6 = body3.newObject("Sketcher::SketchObject", "Sketch005")
sketch6.AttachmentSupport = (doc.getObject("XZ_Plane002"), [""])
sketch6.MapMode = "FlatFace"
sketch6.AttachmentOffset = App.Placement(App.Vector(0, 0, 4.9), App.Rotation())
sketch6.addGeometry(Part.Circle(App.Vector(0, 0, 0), App.Vector(0, 0, 1), 12), False)
sketch6.addGeometry(Part.Circle(App.Vector(0, 0, 0), App.Vector(0, 0, 1), 11), False)
sketch6.addConstraint(Sketcher.Constraint("Coincident", 0, 3, -1, 1))
sketch6.addConstraint(Sketcher.Constraint("Coincident", 1, 3, -1, 1))
sketch6.addConstraint(Sketcher.Constraint("Diameter", 0, 24.0))
sketch6.addConstraint(Sketcher.Constraint("Diameter", 1, 22.0))
pad6 = body3.newObject("PartDesign::Pad", "Pad005")
pad6.Profile = sketch6
pad6.Length = 3.48
pad6.Reversed = True

doc.recompute()
